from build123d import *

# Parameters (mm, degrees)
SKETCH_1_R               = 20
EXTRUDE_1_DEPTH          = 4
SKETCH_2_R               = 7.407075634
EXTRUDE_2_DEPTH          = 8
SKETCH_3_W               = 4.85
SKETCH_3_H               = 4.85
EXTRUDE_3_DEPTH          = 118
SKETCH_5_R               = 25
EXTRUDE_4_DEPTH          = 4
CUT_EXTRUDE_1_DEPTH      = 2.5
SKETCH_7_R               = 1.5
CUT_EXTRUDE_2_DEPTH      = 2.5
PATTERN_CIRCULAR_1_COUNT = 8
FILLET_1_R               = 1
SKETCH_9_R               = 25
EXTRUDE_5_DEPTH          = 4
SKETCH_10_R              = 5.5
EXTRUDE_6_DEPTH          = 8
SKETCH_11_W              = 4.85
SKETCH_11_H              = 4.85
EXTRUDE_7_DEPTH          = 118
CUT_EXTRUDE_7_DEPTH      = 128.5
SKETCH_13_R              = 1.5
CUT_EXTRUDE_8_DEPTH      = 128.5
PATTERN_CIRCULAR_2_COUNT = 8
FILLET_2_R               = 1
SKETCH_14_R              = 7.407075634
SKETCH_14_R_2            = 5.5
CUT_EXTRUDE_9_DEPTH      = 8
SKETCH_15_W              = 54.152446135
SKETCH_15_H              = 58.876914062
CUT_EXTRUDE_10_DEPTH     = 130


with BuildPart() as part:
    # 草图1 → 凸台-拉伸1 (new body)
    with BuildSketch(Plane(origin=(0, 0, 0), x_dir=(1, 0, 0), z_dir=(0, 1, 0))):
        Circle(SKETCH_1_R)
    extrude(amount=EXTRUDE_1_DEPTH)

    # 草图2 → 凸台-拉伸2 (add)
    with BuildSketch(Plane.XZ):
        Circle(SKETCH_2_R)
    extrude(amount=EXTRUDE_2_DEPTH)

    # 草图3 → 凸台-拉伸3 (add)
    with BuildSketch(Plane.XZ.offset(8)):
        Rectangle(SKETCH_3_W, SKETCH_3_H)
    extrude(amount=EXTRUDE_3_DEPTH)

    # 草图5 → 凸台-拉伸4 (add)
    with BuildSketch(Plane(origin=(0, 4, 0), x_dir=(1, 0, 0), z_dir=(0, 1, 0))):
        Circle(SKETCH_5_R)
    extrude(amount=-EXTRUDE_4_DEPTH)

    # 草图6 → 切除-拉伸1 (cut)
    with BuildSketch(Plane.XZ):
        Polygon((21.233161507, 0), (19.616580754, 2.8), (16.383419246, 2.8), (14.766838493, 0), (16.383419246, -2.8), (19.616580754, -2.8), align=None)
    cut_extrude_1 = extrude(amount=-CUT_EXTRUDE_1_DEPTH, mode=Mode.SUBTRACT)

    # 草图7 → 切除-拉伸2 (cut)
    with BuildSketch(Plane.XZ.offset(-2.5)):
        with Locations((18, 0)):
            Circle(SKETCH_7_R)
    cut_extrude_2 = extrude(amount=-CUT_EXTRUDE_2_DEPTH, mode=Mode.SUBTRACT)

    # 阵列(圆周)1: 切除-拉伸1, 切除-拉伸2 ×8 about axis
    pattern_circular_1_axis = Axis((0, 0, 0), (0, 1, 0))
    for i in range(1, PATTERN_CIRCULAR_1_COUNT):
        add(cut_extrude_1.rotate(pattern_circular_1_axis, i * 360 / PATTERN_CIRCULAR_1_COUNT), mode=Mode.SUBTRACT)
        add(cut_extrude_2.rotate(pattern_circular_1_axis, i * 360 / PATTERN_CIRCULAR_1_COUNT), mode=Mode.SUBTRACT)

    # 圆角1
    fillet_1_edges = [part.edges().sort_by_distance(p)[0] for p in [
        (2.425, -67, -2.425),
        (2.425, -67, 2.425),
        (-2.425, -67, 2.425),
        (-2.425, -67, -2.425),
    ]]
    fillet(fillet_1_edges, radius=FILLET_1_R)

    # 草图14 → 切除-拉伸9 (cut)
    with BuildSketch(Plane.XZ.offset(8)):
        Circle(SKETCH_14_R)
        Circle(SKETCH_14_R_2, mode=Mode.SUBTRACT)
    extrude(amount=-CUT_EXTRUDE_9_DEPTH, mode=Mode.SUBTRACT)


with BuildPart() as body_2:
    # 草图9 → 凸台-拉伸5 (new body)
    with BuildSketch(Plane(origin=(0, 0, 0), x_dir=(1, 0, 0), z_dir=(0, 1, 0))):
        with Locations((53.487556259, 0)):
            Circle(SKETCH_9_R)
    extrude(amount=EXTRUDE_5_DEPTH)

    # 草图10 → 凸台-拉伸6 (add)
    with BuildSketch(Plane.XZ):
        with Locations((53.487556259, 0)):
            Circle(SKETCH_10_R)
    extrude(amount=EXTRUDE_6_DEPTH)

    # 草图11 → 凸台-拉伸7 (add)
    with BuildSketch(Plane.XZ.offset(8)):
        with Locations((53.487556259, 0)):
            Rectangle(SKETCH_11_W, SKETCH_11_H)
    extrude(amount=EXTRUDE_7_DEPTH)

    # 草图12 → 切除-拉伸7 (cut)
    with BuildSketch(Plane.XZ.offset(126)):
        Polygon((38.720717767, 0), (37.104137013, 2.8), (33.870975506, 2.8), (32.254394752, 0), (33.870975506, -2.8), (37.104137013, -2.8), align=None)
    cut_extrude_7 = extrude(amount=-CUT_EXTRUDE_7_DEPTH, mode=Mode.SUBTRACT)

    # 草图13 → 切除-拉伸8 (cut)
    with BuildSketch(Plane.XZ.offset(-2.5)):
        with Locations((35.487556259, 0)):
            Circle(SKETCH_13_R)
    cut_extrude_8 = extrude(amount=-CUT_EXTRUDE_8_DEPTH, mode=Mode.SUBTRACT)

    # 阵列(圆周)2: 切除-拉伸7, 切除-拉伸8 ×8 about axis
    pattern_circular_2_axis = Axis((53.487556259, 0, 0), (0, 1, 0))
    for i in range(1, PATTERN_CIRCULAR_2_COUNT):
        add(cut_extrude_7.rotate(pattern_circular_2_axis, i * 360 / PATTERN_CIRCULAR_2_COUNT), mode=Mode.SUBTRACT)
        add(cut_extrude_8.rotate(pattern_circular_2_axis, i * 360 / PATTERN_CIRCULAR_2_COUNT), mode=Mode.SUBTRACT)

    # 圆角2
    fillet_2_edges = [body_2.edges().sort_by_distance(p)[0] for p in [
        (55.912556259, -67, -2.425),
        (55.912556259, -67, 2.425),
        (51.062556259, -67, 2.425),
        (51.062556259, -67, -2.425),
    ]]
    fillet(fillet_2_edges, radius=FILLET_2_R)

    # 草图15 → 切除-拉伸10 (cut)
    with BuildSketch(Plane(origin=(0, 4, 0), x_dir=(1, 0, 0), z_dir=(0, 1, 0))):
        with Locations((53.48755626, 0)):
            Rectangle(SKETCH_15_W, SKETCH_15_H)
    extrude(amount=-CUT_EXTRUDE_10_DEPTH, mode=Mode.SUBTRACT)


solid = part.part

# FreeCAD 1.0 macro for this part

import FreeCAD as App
import Part
import Sketcher
from FreeCAD import Vector
Q = App.Units.Quantity


def edges_at(feature, points):
    """Names of the edges that pass closest to the given points."""
    edges = feature.Shape.Edges
    near = lambda p: min(range(len(edges)), key=lambda i: edges[i].distToShape(Part.Vertex(*p))[0])
    return sorted({f"Edge{near(p) + 1}" for p in points})

doc = App.newDocument("Part")
body = doc.addObject("PartDesign::Body", "Body")

# Sketch on XZ plane
sketch1 = body.newObject("Sketcher::SketchObject", "Sketch")
sketch1.AttachmentSupport = (doc.getObject("XZ_Plane"), [""])
sketch1.MapMode = "FlatFace"
sketch1.addGeometry(Part.Circle(Vector(0, 0, 0), Vector(0, 0, 1), 20), False)
sketch1.addConstraint([
    Sketcher.Constraint("Coincident", 0, 3, -1, 1),
    Sketcher.Constraint("Diameter", 0, 40.0),
])
pad1 = body.newObject("PartDesign::Pad", "Pad")
pad1.Profile = sketch1
pad1.Length = 4
pad1.Reversed = True

# Sketch on XZ plane
sketch2 = body.newObject("Sketcher::SketchObject", "Sketch001")
sketch2.AttachmentSupport = (doc.getObject("XZ_Plane"), [""])
sketch2.MapMode = "FlatFace"
sketch2.addGeometry(Part.Circle(Vector(0, 0, 0), Vector(0, 0, 1), 7), False)
sketch2.addConstraint([
    Sketcher.Constraint("Coincident", 0, 3, -1, 1),
    Sketcher.Constraint("Diameter", 0, 14.814151),
])
pad2 = body.newObject("PartDesign::Pad", "Pad001")
pad2.Profile = sketch2
pad2.Length = 8

# Sketch on XZ plane
sketch3 = body.newObject("Sketcher::SketchObject", "Sketch002")
sketch3.AttachmentSupport = (doc.getObject("XZ_Plane"), [""])
sketch3.MapMode = "FlatFace"
sketch3.AttachmentOffset = App.Placement(Vector(0, 0, 8), App.Rotation())
sketch3.addGeometry([
    Part.LineSegment(Vector(-2.4, 2.4, 0), Vector(-2.4, -2.4, 0)),
    Part.LineSegment(Vector(-2.4, -2.4, 0), Vector(2.4, -2.4, 0)),
    Part.LineSegment(Vector(2.4, -2.4, 0), Vector(2.4, 2.4, 0)),
    Part.LineSegment(Vector(2.4, 2.4, 0), Vector(-2.4, 2.4, 0)),
], False)
sketch3.addConstraint([
    Sketcher.Constraint("Coincident", 0, 2, 1, 1),
    Sketcher.Constraint("Coincident", 1, 2, 2, 1),
    Sketcher.Constraint("Coincident", 2, 2, 3, 1),
    Sketcher.Constraint("Coincident", 3, 2, 0, 1),
    Sketcher.Constraint("Vertical", 0),
    Sketcher.Constraint("Horizontal", 1),
    Sketcher.Constraint("Vertical", 2),
    Sketcher.Constraint("Horizontal", 3),
    Sketcher.Constraint("Symmetric", 0, 2, 2, 2, -1, 1),
    Sketcher.Constraint("Equal", 3, 0),
    Sketcher.Constraint("DistanceX", 1, 1, 1, 2, 4.85),
])
pad3 = body.newObject("PartDesign::Pad", "Pad002")
pad3.Profile = sketch3
pad3.Length = 118

# Sketch on XZ plane
sketch4 = body.newObject("Sketcher::SketchObject", "Sketch003")
sketch4.AttachmentSupport = (doc.getObject("XZ_Plane"), [""])
sketch4.MapMode = "FlatFace"
sketch4.AttachmentOffset = App.Placement(Vector(0, 0, -4), App.Rotation())
sketch4.addGeometry(Part.Circle(Vector(0, 0, 0), Vector(0, 0, 1), 25), False)
sketch4.addConstraint([
    Sketcher.Constraint("Coincident", 0, 3, -1, 1),
    Sketcher.Constraint("Diameter", 0, 50.0),
])
pad4 = body.newObject("PartDesign::Pad", "Pad003")
pad4.Profile = sketch4
pad4.Length = 4

# Sketch on XZ plane
sketch5 = body.newObject("Sketcher::SketchObject", "Sketch004")
sketch5.AttachmentSupport = (doc.getObject("XZ_Plane"), [""])
sketch5.MapMode = "FlatFace"
sketch5.addGeometry([
    Part.LineSegment(Vector(21.2, 0, 0), Vector(19.6, 2.8, 0)),  # 0
    Part.LineSegment(Vector(19.6, 2.8, 0), Vector(16.4, 2.8, 0)),  # 1
    Part.LineSegment(Vector(16.4, 2.8, 0), Vector(14.8, 0, 0)),  # 2
    Part.LineSegment(Vector(14.8, 0, 0), Vector(16.4, -2.8, 0)),  # 3
    Part.LineSegment(Vector(16.4, -2.8, 0), Vector(19.6, -2.8, 0)),  # 4
    Part.LineSegment(Vector(19.6, -2.8, 0), Vector(21.2, 0, 0)),  # 5
], False)
sketch5.addConstraint([
    Sketcher.Constraint("Coincident", 0, 2, 1, 1),
    Sketcher.Constraint("Coincident", 1, 2, 2, 1),
    Sketcher.Constraint("Coincident", 2, 2, 3, 1),
    Sketcher.Constraint("Coincident", 3, 2, 4, 1),
    Sketcher.Constraint("Coincident", 4, 2, 5, 1),
    Sketcher.Constraint("Coincident", 5, 2, 0, 1),
    Sketcher.Constraint("Horizontal", 1),
    Sketcher.Constraint("Horizontal", 4),
    Sketcher.Constraint("Symmetric", 1, 2, 3, 2, -1),
    Sketcher.Constraint("PointOnObject", 2, 2, -1),
    Sketcher.Constraint("PointOnObject", 5, 2, -1),
    Sketcher.Constraint("Parallel", 0, 3),
    Sketcher.Constraint("Parallel", 2, 5),
    Sketcher.Constraint("Angle", 0, Q("120 deg")),
    Sketcher.Constraint("DistanceY", -1, 1, 0, 2, 2.8),
    Sketcher.Constraint("DistanceX", 1, 2, 1, 1, 3.233162),
    Sketcher.Constraint("DistanceX", -1, 1, 0, 2, 19.616581),
])
pocket1 = body.newObject("PartDesign::Pocket", "Pocket")
pocket1.Profile = sketch5
pocket1.Length = 2.5

# Sketch on XZ plane
sketch6 = body.newObject("Sketcher::SketchObject", "Sketch005")
sketch6.AttachmentSupport = (doc.getObject("XZ_Plane"), [""])
sketch6.MapMode = "FlatFace"
sketch6.AttachmentOffset = App.Placement(Vector(0, 0, -2.5), App.Rotation())
sketch6.addGeometry(Part.Circle(Vector(18, 0, 0), Vector(0, 0, 1), 1.5), False)
sketch6.addConstraint([
    Sketcher.Constraint("PointOnObject", 0, 3, -1),
    Sketcher.Constraint("Diameter", 0, 3.0),
    Sketcher.Constraint("DistanceX", -1, 1, 0, 3, 18.0),
])
pocket2 = body.newObject("PartDesign::Pocket", "Pocket001")
pocket2.Profile = sketch6
pocket2.Length = 2.5
doc.recompute()

polarpattern = body.newObject("PartDesign::PolarPattern", "PolarPattern")
polarpattern.Originals = [pocket1, pocket2]
polarpattern.Axis = (doc.getObject("Y_Axis"), [""])
polarpattern.Angle = 360
polarpattern.Occurrences = 8
body.Tip = polarpattern
doc.recompute()

fillet = body.newObject("PartDesign::Fillet", "Fillet")
fillet.Base = (polarpattern, edges_at(polarpattern, [
    (2.425, -67, -2.425),
    (2.425, -67, 2.425),
    (-2.425, -67, 2.425),
    (-2.425, -67, -2.425),
]))
fillet.Radius = 1

# Sketch on XZ plane
sketch7 = body.newObject("Sketcher::SketchObject", "Sketch006")
sketch7.AttachmentSupport = (doc.getObject("XZ_Plane"), [""])
sketch7.MapMode = "FlatFace"
sketch7.AttachmentOffset = App.Placement(Vector(0, 0, 8), App.Rotation())
sketch7.addGeometry([
    Part.Circle(Vector(0, 0, 0), Vector(0, 0, 1), 7),
    Part.Circle(Vector(0, 0, 0), Vector(0, 0, 1), 6),
], False)
sketch7.addConstraint([
    Sketcher.Constraint("Coincident", 0, 3, -1, 1),
    Sketcher.Constraint("Coincident", 1, 3, -1, 1),
    Sketcher.Constraint("Diameter", 1, 11.0),
    Sketcher.Constraint("Diameter", 0, 14.814151),
])
pocket3 = body.newObject("PartDesign::Pocket", "Pocket002")
pocket3.Profile = sketch7
pocket3.Length = 8
body2 = doc.addObject("PartDesign::Body", "Body001")

# Sketch on XZ plane
sketch8 = body2.newObject("Sketcher::SketchObject", "Sketch007")
sketch8.AttachmentSupport = (doc.getObject("XZ_Plane001"), [""])
sketch8.MapMode = "FlatFace"
sketch8.addGeometry(Part.Circle(Vector(53, 0, 0), Vector(0, 0, 1), 25), False)
sketch8.addConstraint([
    Sketcher.Constraint("PointOnObject", 0, 3, -1),
    Sketcher.Constraint("Diameter", 0, 50.0),
    Sketcher.Constraint("DistanceX", -1, 1, 0, 3, 53.487556),
])
pad5 = body2.newObject("PartDesign::Pad", "Pad004")
pad5.Profile = sketch8
pad5.Length = 4
pad5.Reversed = True

# Sketch on XZ plane
sketch9 = body2.newObject("Sketcher::SketchObject", "Sketch008")
sketch9.AttachmentSupport = (doc.getObject("XZ_Plane001"), [""])
sketch9.MapMode = "FlatFace"
sketch9.addGeometry(Part.Circle(Vector(53, 0, 0), Vector(0, 0, 1), 6), False)
sketch9.addConstraint([
    Sketcher.Constraint("PointOnObject", 0, 3, -1),
    Sketcher.Constraint("Diameter", 0, 11.0),
    Sketcher.Constraint("DistanceX", -1, 1, 0, 3, 53.487556),
])
pad6 = body2.newObject("PartDesign::Pad", "Pad005")
pad6.Profile = sketch9
pad6.Length = 8

# Sketch on XZ plane
sketch10 = body2.newObject("Sketcher::SketchObject", "Sketch009")
sketch10.AttachmentSupport = (doc.getObject("XZ_Plane001"), [""])
sketch10.MapMode = "FlatFace"
sketch10.AttachmentOffset = App.Placement(Vector(0, 0, 8), App.Rotation())
sketch10.addGeometry([
    Part.LineSegment(Vector(51.1, 2.4, 0), Vector(51.1, -2.4, 0)),
    Part.LineSegment(Vector(51.1, -2.4, 0), Vector(55.9, -2.4, 0)),
    Part.LineSegment(Vector(55.9, -2.4, 0), Vector(55.9, 2.4, 0)),
    Part.LineSegment(Vector(55.9, 2.4, 0), Vector(51.1, 2.4, 0)),
], False)
sketch10.addConstraint([
    Sketcher.Constraint("Coincident", 0, 2, 1, 1),
    Sketcher.Constraint("Coincident", 1, 2, 2, 1),
    Sketcher.Constraint("Coincident", 2, 2, 3, 1),
    Sketcher.Constraint("Coincident", 3, 2, 0, 1),
    Sketcher.Constraint("Vertical", 0),
    Sketcher.Constraint("Horizontal", 1),
    Sketcher.Constraint("Vertical", 2),
    Sketcher.Constraint("Horizontal", 3),
    Sketcher.Constraint("Equal", 3, 0),
    Sketcher.Constraint("DistanceX", 1, 1, 1, 2, 4.85),
    Sketcher.Constraint("DistanceY", 0, 2, -1, 1, 2.425),
    Sketcher.Constraint("DistanceX", -1, 1, 0, 2, 51.062556),
])
pad7 = body2.newObject("PartDesign::Pad", "Pad006")
pad7.Profile = sketch10
pad7.Length = 118

# Sketch on XZ plane
sketch11 = body2.newObject("Sketcher::SketchObject", "Sketch010")
sketch11.AttachmentSupport = (doc.getObject("XZ_Plane001"), [""])
sketch11.MapMode = "FlatFace"
sketch11.AttachmentOffset = App.Placement(Vector(0, 0, 126), App.Rotation())
sketch11.addGeometry([
    Part.LineSegment(Vector(38.7, 0, 0), Vector(37.1, 2.8, 0)),  # 0
    Part.LineSegment(Vector(37.1, 2.8, 0), Vector(33.9, 2.8, 0)),  # 1
    Part.LineSegment(Vector(33.9, 2.8, 0), Vector(32.3, 0, 0)),  # 2
    Part.LineSegment(Vector(32.3, 0, 0), Vector(33.9, -2.8, 0)),  # 3
    Part.LineSegment(Vector(33.9, -2.8, 0), Vector(37.1, -2.8, 0)),  # 4
    Part.LineSegment(Vector(37.1, -2.8, 0), Vector(38.7, 0, 0)),  # 5
], False)
sketch11.addConstraint([
    Sketcher.Constraint("Coincident", 0, 2, 1, 1),
    Sketcher.Constraint("Coincident", 1, 2, 2, 1),
    Sketcher.Constraint("Coincident", 2, 2, 3, 1),
    Sketcher.Constraint("Coincident", 3, 2, 4, 1),
    Sketcher.Constraint("Coincident", 4, 2, 5, 1),
    Sketcher.Constraint("Coincident", 5, 2, 0, 1),
    Sketcher.Constraint("Horizontal", 1),
    Sketcher.Constraint("Horizontal", 4),
    Sketcher.Constraint("Symmetric", 1, 2, 3, 2, -1),
    Sketcher.Constraint("PointOnObject", 2, 2, -1),
    Sketcher.Constraint("PointOnObject", 5, 2, -1),
    Sketcher.Constraint("Parallel", 0, 3),
    Sketcher.Constraint("Parallel", 2, 5),
    Sketcher.Constraint("Angle", 0, Q("120 deg")),
    Sketcher.Constraint("DistanceY", -1, 1, 0, 2, 2.8),
    Sketcher.Constraint("DistanceX", 1, 2, 1, 1, 3.233162),
    Sketcher.Constraint("DistanceX", -1, 1, 0, 2, 37.104137),
])
pocket4 = body2.newObject("PartDesign::Pocket", "Pocket003")
pocket4.Profile = sketch11
pocket4.Length = 128.5

# Sketch on XZ plane
sketch12 = body2.newObject("Sketcher::SketchObject", "Sketch011")
sketch12.AttachmentSupport = (doc.getObject("XZ_Plane001"), [""])
sketch12.MapMode = "FlatFace"
sketch12.AttachmentOffset = App.Placement(Vector(0, 0, -2.5), App.Rotation())
sketch12.addGeometry(Part.Circle(Vector(35.5, 0, 0), Vector(0, 0, 1), 1.5), False)
sketch12.addConstraint([
    Sketcher.Constraint("PointOnObject", 0, 3, -1),
    Sketcher.Constraint("Diameter", 0, 3.0),
    Sketcher.Constraint("DistanceX", -1, 1, 0, 3, 35.487556),
])
pocket5 = body2.newObject("PartDesign::Pocket", "Pocket004")
pocket5.Profile = sketch12
pocket5.Length = 128.5
doc.recompute()

datumline = body2.newObject("PartDesign::Line", "DatumLine")
datumline.Placement = App.Placement(Vector(53.487556, 0, 0), App.Rotation(Vector(0, 0, 1), Vector(0, 1, 0)))
polarpattern2 = body2.newObject("PartDesign::PolarPattern", "PolarPattern001")
polarpattern2.Originals = [pocket4, pocket5]
polarpattern2.Axis = (datumline, [""])
polarpattern2.Angle = 360
polarpattern2.Occurrences = 8
body2.Tip = polarpattern2
doc.recompute()

fillet2 = body2.newObject("PartDesign::Fillet", "Fillet001")
fillet2.Base = (polarpattern2, edges_at(polarpattern2, [
    (55.913, -67, -2.425),
    (55.913, -67, 2.425),
    (51.063, -67, 2.425),
    (51.063, -67, -2.425),
]))
fillet2.Radius = 1

# Sketch on XZ plane
sketch13 = body2.newObject("Sketcher::SketchObject", "Sketch012")
sketch13.AttachmentSupport = (doc.getObject("XZ_Plane001"), [""])
sketch13.MapMode = "FlatFace"
sketch13.AttachmentOffset = App.Placement(Vector(0, 0, -4), App.Rotation())
sketch13.addGeometry([
    Part.LineSegment(Vector(26, -29, 0), Vector(26, 29, 0)),
    Part.LineSegment(Vector(26, 29, 0), Vector(81, 29, 0)),
    Part.LineSegment(Vector(81, 29, 0), Vector(81, -29, 0)),
    Part.LineSegment(Vector(81, -29, 0), Vector(26, -29, 0)),
], False)
sketch13.addConstraint([
    Sketcher.Constraint("Coincident", 0, 2, 1, 1),
    Sketcher.Constraint("Coincident", 1, 2, 2, 1),
    Sketcher.Constraint("Coincident", 2, 2, 3, 1),
    Sketcher.Constraint("Coincident", 3, 2, 0, 1),
    Sketcher.Constraint("Vertical", 0),
    Sketcher.Constraint("Horizontal", 1),
    Sketcher.Constraint("Vertical", 2),
    Sketcher.Constraint("Horizontal", 3),
    Sketcher.Constraint("DistanceX", 1, 1, 1, 2, 54.152446),
    Sketcher.Constraint("DistanceY", 0, 1, 0, 2, 58.876914),
    Sketcher.Constraint("DistanceX", -1, 1, 1, 2, 80.563779),
    Sketcher.Constraint("DistanceY", -1, 1, 0, 2, 29.438457),
])
pocket6 = body2.newObject("PartDesign::Pocket", "Pocket005")
pocket6.Profile = sketch13
pocket6.Length = 130
pocket6.Reversed = True

doc.recompute()
